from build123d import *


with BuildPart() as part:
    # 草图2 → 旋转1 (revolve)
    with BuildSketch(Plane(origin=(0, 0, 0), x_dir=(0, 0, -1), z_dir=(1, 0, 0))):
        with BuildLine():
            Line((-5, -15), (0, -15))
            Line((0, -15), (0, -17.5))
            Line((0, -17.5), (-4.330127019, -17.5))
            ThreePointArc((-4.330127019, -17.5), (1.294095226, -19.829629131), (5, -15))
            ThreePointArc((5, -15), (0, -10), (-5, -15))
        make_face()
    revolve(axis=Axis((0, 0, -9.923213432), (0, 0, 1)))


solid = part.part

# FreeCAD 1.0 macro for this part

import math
import FreeCAD as App
import Part
import Sketcher
from FreeCAD import Vector

doc = App.newDocument("Part")
body = doc.addObject("PartDesign::Body", "Body")

# Sketch on YZ plane
sketch1 = doc.addObject("Sketcher::SketchObject", "Sketch")
body.addObject(sketch1)
sketch1.AttachmentSupport = (doc.YZ_Plane, [""])
sketch1.MapMode = "FlatFace"
sketch1.addGeometry([
    Part.LineSegment(Vector(-15, 5, 0), Vector(-15, 0, 0)),  # 0
    Part.LineSegment(Vector(-15, 0, 0), Vector(-17.5, 0, 0)),  # 1
    Part.LineSegment(Vector(-17.5, 0, 0), Vector(-17.5, 4.3, 0)),  # 2
    Part.ArcOfCircle(Part.Circle(Vector(-15, 0, 0), Vector(0, 0, 1), 5), math.radians(120), math.radians(270)),  # 3
    Part.ArcOfCircle(Part.Circle(Vector(-15, 0, 0), Vector(0, 0, 1), 5), math.radians(-90), math.radians(90)),  # 4
], False)
sketch1.addConstraint([
    Sketcher.Constraint("Coincident", 0, 2, 1, 1),
    Sketcher.Constraint("Coincident", 1, 2, 2, 1),
    Sketcher.Constraint("Coincident", 2, 2, 3, 1),
    Sketcher.Constraint("Tangent", 3, 2, 4, 1),
    Sketcher.Constraint("Coincident", 4, 2, 0, 1),
    Sketcher.Constraint("Vertical", 0),
    Sketcher.Constraint("Horizontal", 1),
    Sketcher.Constraint("Vertical", 2),
    Sketcher.Constraint("Coincident", 0, 2, 3, 3),
    Sketcher.Constraint("Equal", 3, 4),
    Sketcher.Constraint("Symmetric", 3, 2, 4, 2, -1),
    Sketcher.Constraint("Radius", 3, 5.0),
    Sketcher.Constraint("DistanceX", 1, 2, 1, 1, 2.5),
    Sketcher.Constraint("DistanceX", 3, 3, -1, 1, 15.0),
])
revolution = doc.addObject("PartDesign::Revolution", "Revolution")
body.addObject(revolution)
revolution.Profile = sketch1
revolution.ReferenceAxis = (sketch1, ["V_Axis"])
revolution.Angle = 360

doc.recompute()
